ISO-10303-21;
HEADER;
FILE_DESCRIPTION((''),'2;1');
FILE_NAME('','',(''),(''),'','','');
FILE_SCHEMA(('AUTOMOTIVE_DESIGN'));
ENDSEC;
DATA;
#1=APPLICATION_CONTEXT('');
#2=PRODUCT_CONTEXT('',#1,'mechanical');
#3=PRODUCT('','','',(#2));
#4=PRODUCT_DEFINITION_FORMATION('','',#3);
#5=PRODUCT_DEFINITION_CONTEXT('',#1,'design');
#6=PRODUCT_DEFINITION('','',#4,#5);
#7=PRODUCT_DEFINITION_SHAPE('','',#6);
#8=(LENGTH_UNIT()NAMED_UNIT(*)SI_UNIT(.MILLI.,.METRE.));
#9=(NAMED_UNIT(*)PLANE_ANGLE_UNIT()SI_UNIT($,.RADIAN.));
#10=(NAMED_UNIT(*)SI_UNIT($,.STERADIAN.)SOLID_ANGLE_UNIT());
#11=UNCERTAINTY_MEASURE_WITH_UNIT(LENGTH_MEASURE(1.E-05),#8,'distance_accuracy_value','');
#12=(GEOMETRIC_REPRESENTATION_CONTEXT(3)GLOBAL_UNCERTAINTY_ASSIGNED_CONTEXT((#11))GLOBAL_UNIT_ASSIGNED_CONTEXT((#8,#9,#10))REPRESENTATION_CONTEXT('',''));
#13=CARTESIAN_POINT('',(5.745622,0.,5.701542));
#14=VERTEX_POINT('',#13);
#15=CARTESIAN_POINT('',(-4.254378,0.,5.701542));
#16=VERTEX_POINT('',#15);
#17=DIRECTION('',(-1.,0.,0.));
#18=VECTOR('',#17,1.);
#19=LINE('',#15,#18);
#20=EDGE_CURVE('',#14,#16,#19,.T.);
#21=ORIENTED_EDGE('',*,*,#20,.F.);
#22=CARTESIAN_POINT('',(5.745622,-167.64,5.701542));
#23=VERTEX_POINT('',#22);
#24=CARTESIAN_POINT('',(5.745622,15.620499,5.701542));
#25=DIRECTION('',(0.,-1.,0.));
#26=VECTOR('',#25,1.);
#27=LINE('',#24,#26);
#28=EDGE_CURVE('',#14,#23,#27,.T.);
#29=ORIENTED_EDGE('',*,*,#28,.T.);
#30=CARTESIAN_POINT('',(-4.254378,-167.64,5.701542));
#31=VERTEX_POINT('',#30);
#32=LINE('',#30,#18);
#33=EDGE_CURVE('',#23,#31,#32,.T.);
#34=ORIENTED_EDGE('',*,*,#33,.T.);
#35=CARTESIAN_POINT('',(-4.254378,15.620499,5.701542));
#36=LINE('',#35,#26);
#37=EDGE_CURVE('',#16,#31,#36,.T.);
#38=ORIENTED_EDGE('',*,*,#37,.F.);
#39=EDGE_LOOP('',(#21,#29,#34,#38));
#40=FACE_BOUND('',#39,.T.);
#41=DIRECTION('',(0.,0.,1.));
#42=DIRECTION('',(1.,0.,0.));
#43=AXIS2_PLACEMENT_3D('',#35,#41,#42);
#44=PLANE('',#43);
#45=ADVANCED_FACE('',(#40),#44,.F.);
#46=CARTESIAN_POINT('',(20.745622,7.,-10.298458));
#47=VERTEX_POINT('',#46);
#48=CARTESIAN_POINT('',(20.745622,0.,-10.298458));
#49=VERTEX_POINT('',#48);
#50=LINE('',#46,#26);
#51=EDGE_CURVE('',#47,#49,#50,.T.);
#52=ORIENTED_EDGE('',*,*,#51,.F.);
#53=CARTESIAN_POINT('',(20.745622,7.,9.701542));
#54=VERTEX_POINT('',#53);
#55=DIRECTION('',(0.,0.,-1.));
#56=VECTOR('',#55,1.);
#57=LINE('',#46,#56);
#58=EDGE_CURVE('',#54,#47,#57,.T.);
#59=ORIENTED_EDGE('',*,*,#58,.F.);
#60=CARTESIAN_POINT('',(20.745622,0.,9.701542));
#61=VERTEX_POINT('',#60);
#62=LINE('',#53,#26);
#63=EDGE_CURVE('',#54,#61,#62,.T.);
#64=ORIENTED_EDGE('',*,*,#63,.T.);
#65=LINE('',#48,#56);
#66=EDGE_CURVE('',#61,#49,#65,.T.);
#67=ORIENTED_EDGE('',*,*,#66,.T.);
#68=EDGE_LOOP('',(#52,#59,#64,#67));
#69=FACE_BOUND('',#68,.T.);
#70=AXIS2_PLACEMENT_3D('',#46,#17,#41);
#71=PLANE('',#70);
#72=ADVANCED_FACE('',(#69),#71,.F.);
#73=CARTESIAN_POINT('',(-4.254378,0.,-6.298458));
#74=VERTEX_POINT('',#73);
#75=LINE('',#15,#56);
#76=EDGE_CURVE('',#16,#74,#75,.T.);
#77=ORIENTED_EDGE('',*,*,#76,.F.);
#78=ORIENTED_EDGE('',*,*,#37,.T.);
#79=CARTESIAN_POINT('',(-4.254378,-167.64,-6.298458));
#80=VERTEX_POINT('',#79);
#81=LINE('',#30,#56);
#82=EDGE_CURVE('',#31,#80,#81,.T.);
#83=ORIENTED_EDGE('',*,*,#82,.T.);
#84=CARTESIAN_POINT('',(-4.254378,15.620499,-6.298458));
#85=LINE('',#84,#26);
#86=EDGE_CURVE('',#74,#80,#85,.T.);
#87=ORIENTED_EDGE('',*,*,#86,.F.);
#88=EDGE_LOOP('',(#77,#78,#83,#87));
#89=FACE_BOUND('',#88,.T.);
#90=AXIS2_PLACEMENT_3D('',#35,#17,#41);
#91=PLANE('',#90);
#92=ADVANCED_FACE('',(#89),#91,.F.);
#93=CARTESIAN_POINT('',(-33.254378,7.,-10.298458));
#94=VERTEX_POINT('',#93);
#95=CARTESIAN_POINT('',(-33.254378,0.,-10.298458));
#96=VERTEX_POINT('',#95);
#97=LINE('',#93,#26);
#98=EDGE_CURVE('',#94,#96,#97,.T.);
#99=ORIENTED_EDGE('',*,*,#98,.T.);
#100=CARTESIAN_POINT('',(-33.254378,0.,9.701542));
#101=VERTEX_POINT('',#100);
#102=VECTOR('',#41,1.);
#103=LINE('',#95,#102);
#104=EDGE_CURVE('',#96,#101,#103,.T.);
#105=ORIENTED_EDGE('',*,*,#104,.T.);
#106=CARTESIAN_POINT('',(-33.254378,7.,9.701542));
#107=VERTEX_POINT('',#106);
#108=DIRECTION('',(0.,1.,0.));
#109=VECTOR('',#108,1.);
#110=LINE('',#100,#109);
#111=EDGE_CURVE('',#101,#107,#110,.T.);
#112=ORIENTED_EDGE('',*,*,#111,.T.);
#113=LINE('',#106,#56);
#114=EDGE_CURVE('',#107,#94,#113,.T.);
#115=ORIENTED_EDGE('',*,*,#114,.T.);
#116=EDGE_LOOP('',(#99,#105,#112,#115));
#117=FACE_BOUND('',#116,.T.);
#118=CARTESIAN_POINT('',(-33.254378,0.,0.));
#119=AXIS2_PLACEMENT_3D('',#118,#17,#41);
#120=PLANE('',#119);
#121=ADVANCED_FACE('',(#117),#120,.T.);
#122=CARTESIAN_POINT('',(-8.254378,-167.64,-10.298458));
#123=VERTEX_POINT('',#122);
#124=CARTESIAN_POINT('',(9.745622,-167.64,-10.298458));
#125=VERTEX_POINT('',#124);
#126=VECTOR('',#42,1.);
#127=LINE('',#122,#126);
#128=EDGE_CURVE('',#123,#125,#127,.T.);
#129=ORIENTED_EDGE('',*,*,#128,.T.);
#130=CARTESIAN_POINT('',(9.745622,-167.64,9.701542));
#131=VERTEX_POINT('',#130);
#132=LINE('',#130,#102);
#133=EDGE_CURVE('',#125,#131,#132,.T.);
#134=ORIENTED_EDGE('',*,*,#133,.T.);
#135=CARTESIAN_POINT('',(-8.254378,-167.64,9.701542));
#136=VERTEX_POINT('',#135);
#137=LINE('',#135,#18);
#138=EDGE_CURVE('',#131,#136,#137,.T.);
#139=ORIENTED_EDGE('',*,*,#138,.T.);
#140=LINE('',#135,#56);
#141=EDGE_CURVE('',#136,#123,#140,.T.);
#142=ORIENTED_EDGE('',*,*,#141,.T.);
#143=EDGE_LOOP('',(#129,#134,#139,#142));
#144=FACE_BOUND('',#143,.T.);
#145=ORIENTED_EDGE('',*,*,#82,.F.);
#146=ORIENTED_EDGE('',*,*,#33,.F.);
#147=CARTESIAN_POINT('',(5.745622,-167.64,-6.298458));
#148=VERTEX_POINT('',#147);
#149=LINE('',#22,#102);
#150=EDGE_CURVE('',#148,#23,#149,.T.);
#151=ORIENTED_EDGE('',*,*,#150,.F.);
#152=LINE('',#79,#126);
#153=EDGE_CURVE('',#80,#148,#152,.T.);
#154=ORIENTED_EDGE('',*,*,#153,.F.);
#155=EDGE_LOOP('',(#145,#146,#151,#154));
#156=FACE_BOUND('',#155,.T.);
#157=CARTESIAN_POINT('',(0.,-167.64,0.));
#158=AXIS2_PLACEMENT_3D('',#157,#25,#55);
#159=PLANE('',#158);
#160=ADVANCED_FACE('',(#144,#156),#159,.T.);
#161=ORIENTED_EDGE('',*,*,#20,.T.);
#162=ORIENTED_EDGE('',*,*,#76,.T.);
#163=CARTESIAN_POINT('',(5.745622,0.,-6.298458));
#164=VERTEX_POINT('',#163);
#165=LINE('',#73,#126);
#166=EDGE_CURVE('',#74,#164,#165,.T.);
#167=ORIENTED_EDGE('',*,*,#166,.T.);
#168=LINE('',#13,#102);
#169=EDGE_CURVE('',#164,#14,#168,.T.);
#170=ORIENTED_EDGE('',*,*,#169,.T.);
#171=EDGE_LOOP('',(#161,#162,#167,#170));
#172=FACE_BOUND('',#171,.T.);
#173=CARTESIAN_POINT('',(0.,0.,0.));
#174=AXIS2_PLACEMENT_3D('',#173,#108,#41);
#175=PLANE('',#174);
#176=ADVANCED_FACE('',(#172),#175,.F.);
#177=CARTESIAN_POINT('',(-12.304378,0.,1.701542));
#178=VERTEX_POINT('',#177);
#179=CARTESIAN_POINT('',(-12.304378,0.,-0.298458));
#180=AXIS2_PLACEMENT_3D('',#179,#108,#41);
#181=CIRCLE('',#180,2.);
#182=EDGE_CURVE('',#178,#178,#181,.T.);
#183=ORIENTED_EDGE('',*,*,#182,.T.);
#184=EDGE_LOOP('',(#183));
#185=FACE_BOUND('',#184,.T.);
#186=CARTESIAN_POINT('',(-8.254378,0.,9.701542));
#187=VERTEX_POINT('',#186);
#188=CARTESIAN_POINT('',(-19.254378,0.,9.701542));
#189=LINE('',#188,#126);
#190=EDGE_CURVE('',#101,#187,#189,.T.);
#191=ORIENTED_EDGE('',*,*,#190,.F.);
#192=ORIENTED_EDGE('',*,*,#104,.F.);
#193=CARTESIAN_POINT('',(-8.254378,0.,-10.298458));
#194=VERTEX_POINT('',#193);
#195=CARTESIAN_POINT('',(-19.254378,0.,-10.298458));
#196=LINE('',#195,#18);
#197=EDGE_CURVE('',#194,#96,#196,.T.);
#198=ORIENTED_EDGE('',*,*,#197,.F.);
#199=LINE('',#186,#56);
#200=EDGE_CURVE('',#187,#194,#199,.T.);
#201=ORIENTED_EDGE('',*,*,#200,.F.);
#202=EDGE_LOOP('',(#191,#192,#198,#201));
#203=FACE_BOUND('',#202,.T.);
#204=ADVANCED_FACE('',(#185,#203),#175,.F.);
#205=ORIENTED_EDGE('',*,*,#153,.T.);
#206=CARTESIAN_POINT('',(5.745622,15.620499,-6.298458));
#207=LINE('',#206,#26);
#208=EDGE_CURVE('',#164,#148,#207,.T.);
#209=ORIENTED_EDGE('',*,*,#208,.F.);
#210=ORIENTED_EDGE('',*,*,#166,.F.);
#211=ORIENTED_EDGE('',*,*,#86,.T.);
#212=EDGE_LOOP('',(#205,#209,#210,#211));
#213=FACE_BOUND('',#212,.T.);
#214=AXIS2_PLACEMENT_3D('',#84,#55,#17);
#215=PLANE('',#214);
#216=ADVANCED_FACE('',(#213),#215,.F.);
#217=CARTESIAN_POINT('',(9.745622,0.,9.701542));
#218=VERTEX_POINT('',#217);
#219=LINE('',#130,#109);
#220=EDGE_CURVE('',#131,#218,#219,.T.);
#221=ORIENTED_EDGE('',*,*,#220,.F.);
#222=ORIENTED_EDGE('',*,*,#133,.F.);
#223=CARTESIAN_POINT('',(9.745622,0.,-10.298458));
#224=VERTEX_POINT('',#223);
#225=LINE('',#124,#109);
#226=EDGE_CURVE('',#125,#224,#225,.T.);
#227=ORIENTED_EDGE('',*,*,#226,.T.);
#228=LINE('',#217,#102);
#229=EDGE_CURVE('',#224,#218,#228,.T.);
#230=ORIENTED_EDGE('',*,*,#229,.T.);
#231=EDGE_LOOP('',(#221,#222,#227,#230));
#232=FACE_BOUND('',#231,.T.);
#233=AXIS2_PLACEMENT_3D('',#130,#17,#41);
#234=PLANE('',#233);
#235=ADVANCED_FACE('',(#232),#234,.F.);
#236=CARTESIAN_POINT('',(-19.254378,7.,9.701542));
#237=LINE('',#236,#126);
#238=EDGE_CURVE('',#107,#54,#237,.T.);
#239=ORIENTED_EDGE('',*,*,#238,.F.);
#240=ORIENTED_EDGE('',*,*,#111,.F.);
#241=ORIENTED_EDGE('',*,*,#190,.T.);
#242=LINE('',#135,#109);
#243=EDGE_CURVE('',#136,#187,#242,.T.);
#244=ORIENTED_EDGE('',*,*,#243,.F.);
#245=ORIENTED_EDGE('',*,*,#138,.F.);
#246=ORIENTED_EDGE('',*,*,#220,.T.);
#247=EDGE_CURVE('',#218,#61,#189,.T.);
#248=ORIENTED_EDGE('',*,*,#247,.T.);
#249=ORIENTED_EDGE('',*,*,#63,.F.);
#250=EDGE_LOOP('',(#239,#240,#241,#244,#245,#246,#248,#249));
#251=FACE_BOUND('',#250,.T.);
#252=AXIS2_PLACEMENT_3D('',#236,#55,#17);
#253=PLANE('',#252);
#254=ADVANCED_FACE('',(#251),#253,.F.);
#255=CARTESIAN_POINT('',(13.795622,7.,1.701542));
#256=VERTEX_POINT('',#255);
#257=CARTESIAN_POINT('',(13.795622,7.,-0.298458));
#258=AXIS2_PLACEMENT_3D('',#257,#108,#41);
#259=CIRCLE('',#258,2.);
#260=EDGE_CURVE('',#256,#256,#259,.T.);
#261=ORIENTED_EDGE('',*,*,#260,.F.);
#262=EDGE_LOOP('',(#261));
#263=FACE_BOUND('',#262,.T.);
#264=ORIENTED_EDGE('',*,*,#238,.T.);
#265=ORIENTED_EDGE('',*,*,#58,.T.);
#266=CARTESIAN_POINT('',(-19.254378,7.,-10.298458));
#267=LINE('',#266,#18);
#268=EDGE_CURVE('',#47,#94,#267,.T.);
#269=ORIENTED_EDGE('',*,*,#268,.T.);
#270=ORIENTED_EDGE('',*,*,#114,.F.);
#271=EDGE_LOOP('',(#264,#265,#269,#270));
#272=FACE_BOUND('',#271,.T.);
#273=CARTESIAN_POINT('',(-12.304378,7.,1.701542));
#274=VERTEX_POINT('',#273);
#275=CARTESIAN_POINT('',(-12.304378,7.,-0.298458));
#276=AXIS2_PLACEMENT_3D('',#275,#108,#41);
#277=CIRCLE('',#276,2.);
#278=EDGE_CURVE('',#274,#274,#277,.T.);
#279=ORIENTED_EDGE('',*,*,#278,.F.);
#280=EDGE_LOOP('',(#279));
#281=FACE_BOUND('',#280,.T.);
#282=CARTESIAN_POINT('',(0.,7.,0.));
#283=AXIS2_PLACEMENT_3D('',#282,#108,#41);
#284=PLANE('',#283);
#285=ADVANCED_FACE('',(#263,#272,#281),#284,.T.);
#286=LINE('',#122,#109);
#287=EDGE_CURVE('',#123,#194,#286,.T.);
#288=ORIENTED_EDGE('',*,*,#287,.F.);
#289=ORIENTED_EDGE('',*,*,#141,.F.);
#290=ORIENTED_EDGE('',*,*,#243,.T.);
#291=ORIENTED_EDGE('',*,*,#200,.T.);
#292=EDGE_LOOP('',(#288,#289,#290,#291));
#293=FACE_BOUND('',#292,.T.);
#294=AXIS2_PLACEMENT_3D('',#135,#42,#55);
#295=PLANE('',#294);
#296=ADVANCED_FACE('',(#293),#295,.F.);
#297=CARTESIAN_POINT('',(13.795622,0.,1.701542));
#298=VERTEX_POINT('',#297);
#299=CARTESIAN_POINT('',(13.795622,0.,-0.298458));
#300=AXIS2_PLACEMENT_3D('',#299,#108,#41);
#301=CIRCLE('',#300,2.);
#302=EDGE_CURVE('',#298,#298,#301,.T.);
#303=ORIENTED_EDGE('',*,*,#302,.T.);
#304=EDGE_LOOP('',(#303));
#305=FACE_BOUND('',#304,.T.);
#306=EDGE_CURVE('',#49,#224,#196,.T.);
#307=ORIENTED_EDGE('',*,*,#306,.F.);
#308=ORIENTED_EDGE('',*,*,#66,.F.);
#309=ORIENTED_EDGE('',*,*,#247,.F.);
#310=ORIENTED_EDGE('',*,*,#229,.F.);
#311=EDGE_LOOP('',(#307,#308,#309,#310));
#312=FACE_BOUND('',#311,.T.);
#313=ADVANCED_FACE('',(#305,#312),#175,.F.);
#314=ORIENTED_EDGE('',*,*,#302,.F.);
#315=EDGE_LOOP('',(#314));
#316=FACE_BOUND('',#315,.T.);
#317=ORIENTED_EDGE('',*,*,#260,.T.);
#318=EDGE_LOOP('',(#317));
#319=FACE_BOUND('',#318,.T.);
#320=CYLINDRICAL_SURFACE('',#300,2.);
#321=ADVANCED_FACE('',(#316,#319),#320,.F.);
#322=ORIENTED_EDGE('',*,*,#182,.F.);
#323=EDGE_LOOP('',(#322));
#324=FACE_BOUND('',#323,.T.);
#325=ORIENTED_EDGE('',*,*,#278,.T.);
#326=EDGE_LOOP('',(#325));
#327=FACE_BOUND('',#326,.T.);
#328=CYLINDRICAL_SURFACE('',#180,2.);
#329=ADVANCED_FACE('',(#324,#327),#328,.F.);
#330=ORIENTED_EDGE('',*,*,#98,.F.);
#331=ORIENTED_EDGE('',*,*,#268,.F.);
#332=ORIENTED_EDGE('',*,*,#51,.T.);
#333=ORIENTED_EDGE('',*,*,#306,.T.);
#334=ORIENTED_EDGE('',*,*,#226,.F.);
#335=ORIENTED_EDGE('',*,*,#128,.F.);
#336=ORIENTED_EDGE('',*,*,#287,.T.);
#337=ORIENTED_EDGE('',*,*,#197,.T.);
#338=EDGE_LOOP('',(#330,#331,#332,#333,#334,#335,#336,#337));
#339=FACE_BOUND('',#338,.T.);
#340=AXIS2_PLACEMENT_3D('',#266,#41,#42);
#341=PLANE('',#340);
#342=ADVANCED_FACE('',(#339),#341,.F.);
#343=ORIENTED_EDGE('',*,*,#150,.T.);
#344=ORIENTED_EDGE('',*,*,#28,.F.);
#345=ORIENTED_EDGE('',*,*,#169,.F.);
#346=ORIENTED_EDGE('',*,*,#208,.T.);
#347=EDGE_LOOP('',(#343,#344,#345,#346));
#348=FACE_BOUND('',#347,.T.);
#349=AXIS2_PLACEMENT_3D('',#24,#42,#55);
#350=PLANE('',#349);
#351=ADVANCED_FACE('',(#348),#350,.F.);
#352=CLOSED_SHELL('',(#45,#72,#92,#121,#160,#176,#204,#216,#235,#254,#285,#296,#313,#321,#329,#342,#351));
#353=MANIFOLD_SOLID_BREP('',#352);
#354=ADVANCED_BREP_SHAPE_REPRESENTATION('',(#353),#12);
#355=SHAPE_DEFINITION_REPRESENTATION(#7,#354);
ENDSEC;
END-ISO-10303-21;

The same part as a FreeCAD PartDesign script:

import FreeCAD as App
import Part
import Sketcher
from FreeCAD import Vector


def add_polygon(sketch, points):
    """Adds a closed chain of lines whose ends are joined by coincident constraints."""
    first, n = sketch.GeometryCount, len(points)
    for a, b in zip(points, points[1:] + points[:1]):
        sketch.addGeometry(Part.LineSegment(App.Vector(*a, 0), App.Vector(*b, 0)), False)
    for i in range(n):
        sketch.addConstraint(Sketcher.Constraint("Coincident", first + i, 2, first + (i + 1) % n, 1))

doc = App.newDocument("Part")
params = doc.addObject("Spreadsheet::Sheet", "Params")
for row, (alias, value) in enumerate([
    ("sketch1_width", "40 mm"),
    ("sketch1_height", "20 mm"),
    ("pad1_length", "7 mm"),
    ("sketch2_diameter", "4 mm"),
    ("sketch3_width", "18 mm"),
    ("sketch3_height", "20 mm"),
    ("pad2_length", "167.64 mm"),
    ("sketch4_width", "10 mm"),
    ("sketch4_height", "12 mm"),
    ("pocket2_length", "167.64 mm"),
    ("sketch5_width", "7 mm"),
    ("sketch5_height", "20 mm"),
    ("pad3_length", "14 mm"),
], start=1):
    params.set(f"A{row}", alias)
    params.set(f"B{row}", "=" + value)
    params.setAlias(f"B{row}", alias)

body = doc.addObject("PartDesign::Body", "Body")

# Sketch on XZ plane
sketch1 = body.newObject("Sketcher::SketchObject", "Sketch")
sketch1.AttachmentSupport = (doc.getObject("XZ_Plane"), [""])
sketch1.MapMode = "FlatFace"
add_polygon(sketch1, [(-19, -10), (-19, 10), (21, 10), (21, -10)])  # lines 0-3
sketch1.addConstraint([
    Sketcher.Constraint("Vertical", 0),
    Sketcher.Constraint("Horizontal", 1),
    Sketcher.Constraint("Vertical", 2),
    Sketcher.Constraint("Horizontal", 3),
    Sketcher.Constraint("DistanceX", 1, 1, 1, 2, 40.0),
    Sketcher.Constraint("DistanceY", 0, 1, 0, 2, 20.0),
    Sketcher.Constraint("DistanceY", -1, 1, 0, 2, 9.701542),
    Sketcher.Constraint("DistanceX", 0, 2, -1, 1, 19.254378),
])
sketch1.setExpression("Constraints[8]", "Params.sketch1_width")
sketch1.setExpression("Constraints[9]", "Params.sketch1_height")
pad1 = body.newObject("PartDesign::Pad", "Pad")
pad1.Profile = sketch1
pad1.setExpression("Length", "Params.pad1_length")
pad1.Reversed = True

# Sketch on XZ plane
sketch2 = body.newObject("Sketcher::SketchObject", "Sketch001")
sketch2.AttachmentSupport = (doc.getObject("XZ_Plane"), [""])
sketch2.MapMode = "FlatFace"
sketch2.AttachmentOffset = App.Placement(Vector(0, 0, -7), App.Rotation())
sketch2.addGeometry([
    Part.Circle(Vector(-12.3, -0.3, 0), Vector(0, 0, 1), 2),
    Part.Circle(Vector(13.8, -0.3, 0), Vector(0, 0, 1), 2),
], False)
sketch2.addConstraint([
    Sketcher.Constraint("Equal", 0, 1),
    Sketcher.Constraint("Horizontal", 0, 3, 1, 3),
    Sketcher.Constraint("Diameter", 0, 4.0),
    Sketcher.Constraint("DistanceX", 0, 3, 1, 3, 26.1),
    Sketcher.Constraint("DistanceY", 0, 3, -1, 1, 0.298458),
    Sketcher.Constraint("DistanceX", 0, 3, -1, 1, 12.304378),
])
sketch2.setExpression("Constraints[2]", "Params.sketch2_diameter")
pocket1 = body.newObject("PartDesign::Pocket", "Pocket")
pocket1.Profile = sketch2
pocket1.Type = "ThroughAll"
pocket1.Reversed = True

# Sketch on XZ plane
sketch3 = body.newObject("Sketcher::SketchObject", "Sketch002")
sketch3.AttachmentSupport = (doc.getObject("XZ_Plane"), [""])
sketch3.MapMode = "FlatFace"
add_polygon(sketch3, [(10, -10), (10, 10), (-8, 10), (-8, -10)])  # lines 0-3
sketch3.addConstraint([
    Sketcher.Constraint("Vertical", 0),
    Sketcher.Constraint("Horizontal", 1),
    Sketcher.Constraint("Vertical", 2),
    Sketcher.Constraint("Horizontal", 3),
    Sketcher.Constraint("DistanceX", 1, 2, 1, 1, 18.0),
    Sketcher.Constraint("DistanceY", 0, 1, 0, 2, 20.0),
    Sketcher.Constraint("DistanceY", -1, 1, 0, 2, 9.701542),
    Sketcher.Constraint("DistanceX", -1, 1, 0, 2, 9.745622),
])
sketch3.setExpression("Constraints[8]", "Params.sketch3_width")
sketch3.setExpression("Constraints[9]", "Params.sketch3_height")
pad2 = body.newObject("PartDesign::Pad", "Pad001")
pad2.Profile = sketch3
pad2.setExpression("Length", "Params.pad2_length")

# Sketch on XZ plane
sketch4 = body.newObject("Sketcher::SketchObject", "Sketch003")
sketch4.AttachmentSupport = (doc.getObject("XZ_Plane"), [""])
sketch4.MapMode = "FlatFace"
sketch4.AttachmentOffset = App.Placement(Vector(0, 0, 167.64), App.Rotation())
add_polygon(sketch4, [(-4, 6), (-4, -6), (6, -6), (6, 6)])  # lines 0-3
sketch4.addConstraint([
    Sketcher.Constraint("Vertical", 0),
    Sketcher.Constraint("Horizontal", 1),
    Sketcher.Constraint("Vertical", 2),
    Sketcher.Constraint("Horizontal", 3),
    Sketcher.Constraint("DistanceX", 1, 1, 1, 2, 10.0),
    Sketcher.Constraint("DistanceY", 0, 2, 0, 1, 12.0),
    Sketcher.Constraint("DistanceY", 0, 2, -1, 1, 6.298458),
    Sketcher.Constraint("DistanceX", 0, 2, -1, 1, 4.254378),
])
sketch4.setExpression("Constraints[8]", "Params.sketch4_width")
sketch4.setExpression("Constraints[9]", "Params.sketch4_height")
pocket2 = body.newObject("PartDesign::Pocket", "Pocket001")
pocket2.Profile = sketch4
pocket2.setExpression("Length", "Params.pocket2_length")

# Sketch on YZ plane
sketch5 = body.newObject("Sketcher::SketchObject", "Sketch004")
sketch5.AttachmentSupport = (doc.getObject("YZ_Plane"), [""])
sketch5.MapMode = "FlatFace"
sketch5.AttachmentOffset = App.Placement(Vector(0, 0, -19.254378), App.Rotation())
add_polygon(sketch5, [(7, -10), (0, -10), (0, 10), (7, 10)])  # lines 0-3
sketch5.addConstraint([
    Sketcher.Constraint("Horizontal", 0),
    Sketcher.Constraint("Vertical", 1),
    Sketcher.Constraint("Horizontal", 2),
    Sketcher.Constraint("Vertical", 3),
    Sketcher.Constraint("PointOnObject", 0, 2, -2),
    Sketcher.Constraint("DistanceX", 0, 2, 0, 1, 7.0),
    Sketcher.Constraint("DistanceY", 1, 1, 1, 2, 20.0),
    Sketcher.Constraint("DistanceY", 0, 2, -1, 1, 10.298458),
])
sketch5.setExpression("Constraints[9]", "Params.sketch5_width")
sketch5.setExpression("Constraints[10]", "Params.sketch5_height")
pad3 = body.newObject("PartDesign::Pad", "Pad002")
pad3.Profile = sketch5
pad3.setExpression("Length", "Params.pad3_length")
pad3.Reversed = True

doc.recompute()
